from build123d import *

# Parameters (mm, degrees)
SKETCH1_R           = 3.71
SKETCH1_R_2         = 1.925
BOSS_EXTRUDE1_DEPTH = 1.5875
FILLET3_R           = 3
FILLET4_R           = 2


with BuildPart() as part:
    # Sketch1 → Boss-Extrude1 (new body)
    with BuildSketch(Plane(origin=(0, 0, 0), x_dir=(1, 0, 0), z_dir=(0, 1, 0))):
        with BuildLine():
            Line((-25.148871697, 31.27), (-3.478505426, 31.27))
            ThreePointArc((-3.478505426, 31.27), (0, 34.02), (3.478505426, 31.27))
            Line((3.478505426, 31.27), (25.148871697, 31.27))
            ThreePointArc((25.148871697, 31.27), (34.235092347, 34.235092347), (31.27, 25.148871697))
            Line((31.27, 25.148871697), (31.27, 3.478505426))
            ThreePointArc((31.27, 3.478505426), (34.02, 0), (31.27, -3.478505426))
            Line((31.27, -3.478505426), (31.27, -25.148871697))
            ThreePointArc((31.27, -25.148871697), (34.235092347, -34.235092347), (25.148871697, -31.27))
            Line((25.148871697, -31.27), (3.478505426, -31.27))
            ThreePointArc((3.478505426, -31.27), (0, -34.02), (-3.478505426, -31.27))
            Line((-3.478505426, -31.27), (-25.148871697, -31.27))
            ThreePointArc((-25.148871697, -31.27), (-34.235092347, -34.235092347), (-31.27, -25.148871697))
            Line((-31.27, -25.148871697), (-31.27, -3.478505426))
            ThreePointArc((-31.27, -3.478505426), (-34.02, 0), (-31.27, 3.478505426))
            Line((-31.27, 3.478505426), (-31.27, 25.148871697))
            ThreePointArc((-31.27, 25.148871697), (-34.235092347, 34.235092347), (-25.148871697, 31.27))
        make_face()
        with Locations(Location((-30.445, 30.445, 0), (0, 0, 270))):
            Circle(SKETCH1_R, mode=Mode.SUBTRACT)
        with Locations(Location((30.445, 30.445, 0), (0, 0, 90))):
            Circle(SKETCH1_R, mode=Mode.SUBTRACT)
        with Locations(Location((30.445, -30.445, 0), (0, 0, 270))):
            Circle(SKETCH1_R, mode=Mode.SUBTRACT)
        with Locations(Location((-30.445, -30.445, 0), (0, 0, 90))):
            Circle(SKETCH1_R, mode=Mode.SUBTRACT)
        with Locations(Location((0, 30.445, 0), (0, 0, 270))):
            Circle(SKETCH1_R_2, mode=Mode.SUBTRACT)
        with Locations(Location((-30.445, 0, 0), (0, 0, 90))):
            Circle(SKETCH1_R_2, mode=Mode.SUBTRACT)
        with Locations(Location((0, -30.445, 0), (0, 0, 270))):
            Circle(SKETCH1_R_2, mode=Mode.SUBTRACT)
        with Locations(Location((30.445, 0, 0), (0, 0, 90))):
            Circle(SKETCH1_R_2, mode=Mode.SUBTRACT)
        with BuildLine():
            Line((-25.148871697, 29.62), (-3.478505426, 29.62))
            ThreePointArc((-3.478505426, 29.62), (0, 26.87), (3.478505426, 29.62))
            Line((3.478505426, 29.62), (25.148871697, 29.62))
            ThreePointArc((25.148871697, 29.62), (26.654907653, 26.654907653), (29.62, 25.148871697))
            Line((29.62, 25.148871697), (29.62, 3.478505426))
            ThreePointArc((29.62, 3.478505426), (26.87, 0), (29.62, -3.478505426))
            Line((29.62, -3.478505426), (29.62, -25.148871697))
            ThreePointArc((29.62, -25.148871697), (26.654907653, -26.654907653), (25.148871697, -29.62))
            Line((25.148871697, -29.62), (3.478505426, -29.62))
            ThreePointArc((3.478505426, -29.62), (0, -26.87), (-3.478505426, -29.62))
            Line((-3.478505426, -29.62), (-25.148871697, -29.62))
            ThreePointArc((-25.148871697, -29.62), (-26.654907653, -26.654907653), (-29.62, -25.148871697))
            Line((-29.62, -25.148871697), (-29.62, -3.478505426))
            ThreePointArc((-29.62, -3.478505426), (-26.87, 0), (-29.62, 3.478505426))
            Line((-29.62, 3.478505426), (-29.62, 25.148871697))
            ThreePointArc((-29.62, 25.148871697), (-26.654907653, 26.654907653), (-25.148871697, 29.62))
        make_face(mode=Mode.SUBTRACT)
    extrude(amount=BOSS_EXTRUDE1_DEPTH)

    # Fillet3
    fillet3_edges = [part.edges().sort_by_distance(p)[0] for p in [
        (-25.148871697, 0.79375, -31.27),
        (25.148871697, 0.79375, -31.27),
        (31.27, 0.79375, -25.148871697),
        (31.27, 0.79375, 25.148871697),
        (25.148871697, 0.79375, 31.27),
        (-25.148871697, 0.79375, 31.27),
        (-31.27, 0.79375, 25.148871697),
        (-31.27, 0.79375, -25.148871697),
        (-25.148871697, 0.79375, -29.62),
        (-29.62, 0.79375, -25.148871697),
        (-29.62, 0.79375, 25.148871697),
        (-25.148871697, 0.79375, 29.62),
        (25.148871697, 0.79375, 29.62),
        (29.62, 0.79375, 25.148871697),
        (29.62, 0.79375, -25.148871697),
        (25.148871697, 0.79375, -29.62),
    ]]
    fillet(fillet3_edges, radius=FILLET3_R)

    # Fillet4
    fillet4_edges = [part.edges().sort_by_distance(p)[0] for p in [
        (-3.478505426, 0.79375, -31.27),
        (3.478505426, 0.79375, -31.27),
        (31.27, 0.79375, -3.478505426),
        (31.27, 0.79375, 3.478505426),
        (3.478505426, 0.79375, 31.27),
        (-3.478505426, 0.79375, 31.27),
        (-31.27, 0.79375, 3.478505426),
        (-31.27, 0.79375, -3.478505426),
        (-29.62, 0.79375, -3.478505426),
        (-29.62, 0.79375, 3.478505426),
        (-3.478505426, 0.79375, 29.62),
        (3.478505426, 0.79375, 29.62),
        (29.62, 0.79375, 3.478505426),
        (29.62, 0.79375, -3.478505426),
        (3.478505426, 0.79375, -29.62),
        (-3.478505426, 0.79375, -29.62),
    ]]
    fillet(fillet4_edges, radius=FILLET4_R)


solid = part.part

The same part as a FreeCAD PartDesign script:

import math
import FreeCAD as App
import Part
import Sketcher
Q = App.Units.Quantity


def edges_at(feature, points):
    """Names of the edges that pass closest to the given points."""
    edges = feature.Shape.Edges
    near = lambda p: min(range(len(edges)), key=lambda i: edges[i].distToShape(Part.Vertex(*p))[0])
    return sorted({f"Edge{near(p) + 1}" for p in points})

doc = App.newDocument("Part")
body = doc.addObject("PartDesign::Body", "Body")

sketch1 = body.newObject("Sketcher::SketchObject", "Sketch")
sketch1.AttachmentSupport = (doc.getObject("XZ_Plane"), [""])
sketch1.MapMode = "FlatFace"
sketch1.addGeometry([
    Part.LineSegment(App.Vector(-3.5, -31.3, 0), App.Vector(-25.1, -31.3, 0)),
    Part.ArcOfCircle(Part.Circle(App.Vector(-30.4, -30.4, 0), App.Vector(0, 0, 1), 5.4), math.radians(99), math.radians(351)),
    Part.LineSegment(App.Vector(-31.3, -25.1, 0), App.Vector(-31.3, -3.5, 0)),
    Part.ArcOfCircle(Part.Circle(App.Vector(-30.4, 0, 0), App.Vector(0, 0, 1), 3.6), math.radians(103), math.radians(257)),
    Part.LineSegment(App.Vector(-31.3, 3.5, 0), App.Vector(-31.3, 25.1, 0)),
    Part.ArcOfCircle(Part.Circle(App.Vector(-30.4, 30.4, 0), App.Vector(0, 0, 1), 5.4), math.radians(9), math.radians(261)),
    Part.LineSegment(App.Vector(-25.1, 31.3, 0), App.Vector(-3.5, 31.3, 0)),
    Part.ArcOfCircle(Part.Circle(App.Vector(0, 30.4, 0), App.Vector(0, 0, 1), 3.6), math.radians(13), math.radians(167)),
    Part.LineSegment(App.Vector(3.5, 31.3, 0), App.Vector(25.1, 31.3, 0)),
    Part.ArcOfCircle(Part.Circle(App.Vector(30.4, 30.4, 0), App.Vector(0, 0, 1), 5.4), math.radians(-81), math.radians(171)),
    Part.LineSegment(App.Vector(31.3, 25.1, 0), App.Vector(31.3, 3.5, 0)),
    Part.ArcOfCircle(Part.Circle(App.Vector(30.4, 0, 0), App.Vector(0, 0, 1), 3.6), math.radians(-77), math.radians(77)),
    Part.LineSegment(App.Vector(31.3, -3.5, 0), App.Vector(31.3, -25.1, 0)),
    Part.ArcOfCircle(Part.Circle(App.Vector(30.4, -30.4, 0), App.Vector(0, 0, 1), 5.4), math.radians(-171), math.radians(81)),
    Part.LineSegment(App.Vector(25.1, -31.3, 0), App.Vector(3.5, -31.3, 0)),
    Part.ArcOfCircle(Part.Circle(App.Vector(0, -30.4, 0), App.Vector(0, 0, 1), 3.6), math.radians(-167), math.radians(-13)),
    Part.Circle(App.Vector(30.4, 30.4, 0), App.Vector(0, 0, 1), 3.7),
    Part.Circle(App.Vector(0, 30.4, 0), App.Vector(0, 0, 1), 1.9),
    Part.Circle(App.Vector(-30.4, 30.4, 0), App.Vector(0, 0, 1), 3.7),
    Part.Circle(App.Vector(30.4, 0, 0), App.Vector(0, 0, 1), 1.9),
    Part.Circle(App.Vector(30.4, -30.4, 0), App.Vector(0, 0, 1), 3.7),
    Part.LineSegment(App.Vector(-25.1, -29.6, 0), App.Vector(-3.5, -29.6, 0)),
    Part.ArcOfCircle(Part.Circle(App.Vector(0, -30.4, 0), App.Vector(0, 0, 1), 3.6), math.radians(13), math.radians(167)),
    Part.LineSegment(App.Vector(3.5, -29.6, 0), App.Vector(25.1, -29.6, 0)),
    Part.ArcOfCircle(Part.Circle(App.Vector(30.4, -30.4, 0), App.Vector(0, 0, 1), 5.4), math.radians(99), math.radians(171)),
    Part.LineSegment(App.Vector(29.6, -25.1, 0), App.Vector(29.6, -3.5, 0)),
    Part.ArcOfCircle(Part.Circle(App.Vector(30.4, 0, 0), App.Vector(0, 0, 1), 3.6), math.radians(103), math.radians(257)),
    Part.LineSegment(App.Vector(29.6, 3.5, 0), App.Vector(29.6, 25.1, 0)),
    Part.ArcOfCircle(Part.Circle(App.Vector(30.4, 30.4, 0), App.Vector(0, 0, 1), 5.4), math.radians(-171), math.radians(-99)),
    Part.LineSegment(App.Vector(25.1, 29.6, 0), App.Vector(3.5, 29.6, 0)),
    Part.ArcOfCircle(Part.Circle(App.Vector(0, 30.4, 0), App.Vector(0, 0, 1), 3.6), math.radians(-167), math.radians(-13)),
    Part.LineSegment(App.Vector(-3.5, 29.6, 0), App.Vector(-25.1, 29.6, 0)),
    Part.ArcOfCircle(Part.Circle(App.Vector(-30.4, 30.4, 0), App.Vector(0, 0, 1), 5.4), math.radians(-81), math.radians(-9)),
    Part.LineSegment(App.Vector(-29.6, 25.1, 0), App.Vector(-29.6, 3.5, 0)),
    Part.ArcOfCircle(Part.Circle(App.Vector(-30.4, 0, 0), App.Vector(0, 0, 1), 3.6), math.radians(-77), math.radians(77)),
    Part.LineSegment(App.Vector(-29.6, -3.5, 0), App.Vector(-29.6, -25.1, 0)),
    Part.ArcOfCircle(Part.Circle(App.Vector(-30.4, -30.4, 0), App.Vector(0, 0, 1), 5.4), math.radians(9), math.radians(81)),
    Part.Circle(App.Vector(-30.4, 0, 0), App.Vector(0, 0, 1), 1.9),
    Part.Circle(App.Vector(0, -30.4, 0), App.Vector(0, 0, 1), 1.9),
    Part.Circle(App.Vector(-30.4, -30.4, 0), App.Vector(0, 0, 1), 3.7),
], False)
sketch1.addConstraint([
    Sketcher.Constraint("Coincident", 0, 2, 1, 2),
    Sketcher.Constraint("Coincident", 1, 1, 2, 1),
    Sketcher.Constraint("Coincident", 2, 2, 3, 2),
    Sketcher.Constraint("Coincident", 3, 1, 4, 1),
    Sketcher.Constraint("Coincident", 4, 2, 5, 2),
    Sketcher.Constraint("Coincident", 5, 1, 6, 1),
    Sketcher.Constraint("Coincident", 6, 2, 7, 2),
    Sketcher.Constraint("Coincident", 7, 1, 8, 1),
    Sketcher.Constraint("Coincident", 8, 2, 9, 2),
    Sketcher.Constraint("Coincident", 9, 1, 10, 1),
    Sketcher.Constraint("Coincident", 10, 2, 11, 2),
    Sketcher.Constraint("Coincident", 11, 1, 12, 1),
    Sketcher.Constraint("Coincident", 12, 2, 13, 2),
    Sketcher.Constraint("Coincident", 13, 1, 14, 1),
    Sketcher.Constraint("Coincident", 14, 2, 15, 2),
    Sketcher.Constraint("Coincident", 15, 1, 0, 1),
    Sketcher.Constraint("Coincident", 21, 2, 22, 2),
    Sketcher.Constraint("Coincident", 22, 1, 23, 1),
    Sketcher.Constraint("Coincident", 23, 2, 24, 2),
    Sketcher.Constraint("Coincident", 24, 1, 25, 1),
    Sketcher.Constraint("Coincident", 25, 2, 26, 2),
    Sketcher.Constraint("Coincident", 26, 1, 27, 1),
    Sketcher.Constraint("Coincident", 27, 2, 28, 2),
    Sketcher.Constraint("Coincident", 28, 1, 29, 1),
    Sketcher.Constraint("Coincident", 29, 2, 30, 2),
    Sketcher.Constraint("Coincident", 30, 1, 31, 1),
    Sketcher.Constraint("Coincident", 31, 2, 32, 2),
    Sketcher.Constraint("Coincident", 32, 1, 33, 1),
    Sketcher.Constraint("Coincident", 33, 2, 34, 2),
    Sketcher.Constraint("Coincident", 34, 1, 35, 1),
    Sketcher.Constraint("Coincident", 35, 2, 36, 2),
    Sketcher.Constraint("Coincident", 36, 1, 21, 1),
    Sketcher.Constraint("Horizontal", 0),
    Sketcher.Constraint("Vertical", 2),
    Sketcher.Constraint("Vertical", 4),
    Sketcher.Constraint("Horizontal", 6),
    Sketcher.Constraint("Horizontal", 8),
    Sketcher.Constraint("Vertical", 10),
    Sketcher.Constraint("Vertical", 12),
    Sketcher.Constraint("Horizontal", 14),
    Sketcher.Constraint("Horizontal", 21),
    Sketcher.Constraint("Horizontal", 23),
    Sketcher.Constraint("Vertical", 25),
    Sketcher.Constraint("Vertical", 27),
    Sketcher.Constraint("Horizontal", 29),
    Sketcher.Constraint("Horizontal", 31),
    Sketcher.Constraint("Vertical", 33),
    Sketcher.Constraint("Vertical", 35),
    Sketcher.Constraint("Coincident", 16, 3, 9, 3),
    Sketcher.Constraint("Coincident", 17, 3, 7, 3),
    Sketcher.Constraint("Coincident", 18, 3, 5, 3),
    Sketcher.Constraint("Coincident", 19, 3, 11, 3),
    Sketcher.Constraint("Coincident", 20, 3, 13, 3),
    Sketcher.Constraint("Coincident", 22, 3, 15, 3),
    Sketcher.Constraint("Coincident", 24, 3, 13, 3),
    Sketcher.Constraint("Coincident", 26, 3, 11, 3),
    Sketcher.Constraint("Coincident", 28, 3, 9, 3),
    Sketcher.Constraint("Coincident", 30, 3, 7, 3),
    Sketcher.Constraint("Coincident", 32, 3, 5, 3),
    Sketcher.Constraint("Coincident", 34, 3, 3, 3),
    Sketcher.Constraint("Coincident", 36, 3, 1, 3),
    Sketcher.Constraint("Coincident", 37, 3, 3, 3),
    Sketcher.Constraint("Coincident", 38, 3, 15, 3),
    Sketcher.Constraint("Coincident", 39, 3, 1, 3),
    Sketcher.Constraint("Equal", 1, 5),
    Sketcher.Constraint("Equal", 3, 7),
    Sketcher.Constraint("Equal", 5, 9),
    Sketcher.Constraint("Equal", 7, 11),
    Sketcher.Constraint("Equal", 9, 13),
    Sketcher.Constraint("Equal", 11, 15),
    Sketcher.Constraint("Equal", 16, 18),
    Sketcher.Constraint("Equal", 17, 19),
    Sketcher.Constraint("Equal", 18, 20),
    Sketcher.Constraint("Equal", 15, 22),
    Sketcher.Constraint("Equal", 13, 24),
    Sketcher.Constraint("Equal", 22, 26),
    Sketcher.Constraint("Equal", 24, 28),
    Sketcher.Constraint("Equal", 26, 30),
    Sketcher.Constraint("Equal", 28, 32),
    Sketcher.Constraint("Equal", 30, 34),
    Sketcher.Constraint("Equal", 32, 36),
    Sketcher.Constraint("Equal", 19, 37),
    Sketcher.Constraint("Equal", 37, 38),
    Sketcher.Constraint("Equal", 20, 39),
    Sketcher.Constraint("Symmetric", 1, 3, 9, 3, -1, 1),
    Sketcher.Constraint("Symmetric", 3, 3, 11, 3, -1, 1),
    Sketcher.Constraint("Symmetric", 5, 3, 13, 3, -1, 1),
    Sketcher.Constraint("Symmetric", 7, 3, 15, 3, -1, 1),
    Sketcher.Constraint("Symmetric", 5, 3, 9, 3, -2),
    Sketcher.Constraint("Symmetric", 6, 2, 7, 1, -2),
    Sketcher.Constraint("Symmetric", 3, 1, 10, 2, -2),
    Sketcher.Constraint("Horizontal", 5, 3, 7, 3),
    Sketcher.Constraint("Horizontal", 2, 2, 11, 1),
    Sketcher.Constraint("Horizontal", 0, 2, 13, 1),
    Sketcher.Constraint("Horizontal", 21, 2, 22, 1),
    Sketcher.Constraint("Horizontal", 12, 2, 24, 1),
    Sketcher.Constraint("Horizontal", 11, 1, 25, 2),
    Sketcher.Constraint("Horizontal", 10, 2, 26, 1),
    Sketcher.Constraint("Horizontal", 29, 2, 30, 1),
    Sketcher.Constraint("Horizontal", 27, 2, 32, 1),
    Sketcher.Constraint("Horizontal", 25, 2, 34, 1),
    Sketcher.Constraint("Vertical", 2, 2, 3, 1),
    Sketcher.Constraint("Vertical", 0, 2, 5, 1),
    Sketcher.Constraint("Vertical", 15, 1, 21, 2),
    Sketcher.Constraint("Vertical", 23, 2, 28, 1),
    Sketcher.Constraint("Equal", 31, 2),
    Sketcher.Constraint("Diameter", 16, Q("7.42 mm")),
    Sketcher.Constraint("Diameter", 17, Q("3.85 mm")),
    Sketcher.Constraint("Radius", 1, Q("5.36 mm")),
    Sketcher.Constraint("Radius", 3, Q("3.575 mm")),
    Sketcher.Constraint("DistanceY", 0, 2, -1, 1, Q("31.27 mm")),
    Sketcher.Constraint("DistanceX", 1, 1, -1, 1, Q("31.27 mm")),
    Sketcher.Constraint("DistanceY", 21, 2, -1, 1, Q("29.62 mm")),
])
pad1 = body.newObject("PartDesign::Pad", "Pad")
pad1.Profile = sketch1
pad1.Length = 1.5875
pad1.Reversed = True
doc.recompute()

fillet = body.newObject("PartDesign::Fillet", "Fillet")
fillet.Base = (pad1, edges_at(pad1, [
    (-25.149, 0.794, -31.27),
    (25.149, 0.794, -31.27),
    (31.27, 0.794, -25.149),
    (31.27, 0.794, 25.149),
    (25.149, 0.794, 31.27),
    (-25.149, 0.794, 31.27),
    (-31.27, 0.794, 25.149),
    (-31.27, 0.794, -25.149),
    (-25.149, 0.794, -29.62),
    (-29.62, 0.794, -25.149),
    (-29.62, 0.794, 25.149),
    (-25.149, 0.794, 29.62),
    (25.149, 0.794, 29.62),
    (29.62, 0.794, 25.149),
    (29.62, 0.794, -25.149),
    (25.149, 0.794, -29.62),
]))
fillet.Radius = 3
doc.recompute()

fillet2 = body.newObject("PartDesign::Fillet", "Fillet001")
fillet2.Base = (fillet, edges_at(fillet, [
    (-3.479, 0.794, -31.27),
    (3.479, 0.794, -31.27),
    (31.27, 0.794, -3.479),
    (31.27, 0.794, 3.479),
    (3.479, 0.794, 31.27),
    (-3.479, 0.794, 31.27),
    (-31.27, 0.794, 3.479),
    (-31.27, 0.794, -3.479),
    (-29.62, 0.794, -3.479),
    (-29.62, 0.794, 3.479),
    (-3.479, 0.794, 29.62),
    (3.479, 0.794, 29.62),
    (29.62, 0.794, 3.479),
    (29.62, 0.794, -3.479),
    (3.479, 0.794, -29.62),
    (-3.479, 0.794, -29.62),
]))
fillet2.Radius = 2

doc.recompute()
